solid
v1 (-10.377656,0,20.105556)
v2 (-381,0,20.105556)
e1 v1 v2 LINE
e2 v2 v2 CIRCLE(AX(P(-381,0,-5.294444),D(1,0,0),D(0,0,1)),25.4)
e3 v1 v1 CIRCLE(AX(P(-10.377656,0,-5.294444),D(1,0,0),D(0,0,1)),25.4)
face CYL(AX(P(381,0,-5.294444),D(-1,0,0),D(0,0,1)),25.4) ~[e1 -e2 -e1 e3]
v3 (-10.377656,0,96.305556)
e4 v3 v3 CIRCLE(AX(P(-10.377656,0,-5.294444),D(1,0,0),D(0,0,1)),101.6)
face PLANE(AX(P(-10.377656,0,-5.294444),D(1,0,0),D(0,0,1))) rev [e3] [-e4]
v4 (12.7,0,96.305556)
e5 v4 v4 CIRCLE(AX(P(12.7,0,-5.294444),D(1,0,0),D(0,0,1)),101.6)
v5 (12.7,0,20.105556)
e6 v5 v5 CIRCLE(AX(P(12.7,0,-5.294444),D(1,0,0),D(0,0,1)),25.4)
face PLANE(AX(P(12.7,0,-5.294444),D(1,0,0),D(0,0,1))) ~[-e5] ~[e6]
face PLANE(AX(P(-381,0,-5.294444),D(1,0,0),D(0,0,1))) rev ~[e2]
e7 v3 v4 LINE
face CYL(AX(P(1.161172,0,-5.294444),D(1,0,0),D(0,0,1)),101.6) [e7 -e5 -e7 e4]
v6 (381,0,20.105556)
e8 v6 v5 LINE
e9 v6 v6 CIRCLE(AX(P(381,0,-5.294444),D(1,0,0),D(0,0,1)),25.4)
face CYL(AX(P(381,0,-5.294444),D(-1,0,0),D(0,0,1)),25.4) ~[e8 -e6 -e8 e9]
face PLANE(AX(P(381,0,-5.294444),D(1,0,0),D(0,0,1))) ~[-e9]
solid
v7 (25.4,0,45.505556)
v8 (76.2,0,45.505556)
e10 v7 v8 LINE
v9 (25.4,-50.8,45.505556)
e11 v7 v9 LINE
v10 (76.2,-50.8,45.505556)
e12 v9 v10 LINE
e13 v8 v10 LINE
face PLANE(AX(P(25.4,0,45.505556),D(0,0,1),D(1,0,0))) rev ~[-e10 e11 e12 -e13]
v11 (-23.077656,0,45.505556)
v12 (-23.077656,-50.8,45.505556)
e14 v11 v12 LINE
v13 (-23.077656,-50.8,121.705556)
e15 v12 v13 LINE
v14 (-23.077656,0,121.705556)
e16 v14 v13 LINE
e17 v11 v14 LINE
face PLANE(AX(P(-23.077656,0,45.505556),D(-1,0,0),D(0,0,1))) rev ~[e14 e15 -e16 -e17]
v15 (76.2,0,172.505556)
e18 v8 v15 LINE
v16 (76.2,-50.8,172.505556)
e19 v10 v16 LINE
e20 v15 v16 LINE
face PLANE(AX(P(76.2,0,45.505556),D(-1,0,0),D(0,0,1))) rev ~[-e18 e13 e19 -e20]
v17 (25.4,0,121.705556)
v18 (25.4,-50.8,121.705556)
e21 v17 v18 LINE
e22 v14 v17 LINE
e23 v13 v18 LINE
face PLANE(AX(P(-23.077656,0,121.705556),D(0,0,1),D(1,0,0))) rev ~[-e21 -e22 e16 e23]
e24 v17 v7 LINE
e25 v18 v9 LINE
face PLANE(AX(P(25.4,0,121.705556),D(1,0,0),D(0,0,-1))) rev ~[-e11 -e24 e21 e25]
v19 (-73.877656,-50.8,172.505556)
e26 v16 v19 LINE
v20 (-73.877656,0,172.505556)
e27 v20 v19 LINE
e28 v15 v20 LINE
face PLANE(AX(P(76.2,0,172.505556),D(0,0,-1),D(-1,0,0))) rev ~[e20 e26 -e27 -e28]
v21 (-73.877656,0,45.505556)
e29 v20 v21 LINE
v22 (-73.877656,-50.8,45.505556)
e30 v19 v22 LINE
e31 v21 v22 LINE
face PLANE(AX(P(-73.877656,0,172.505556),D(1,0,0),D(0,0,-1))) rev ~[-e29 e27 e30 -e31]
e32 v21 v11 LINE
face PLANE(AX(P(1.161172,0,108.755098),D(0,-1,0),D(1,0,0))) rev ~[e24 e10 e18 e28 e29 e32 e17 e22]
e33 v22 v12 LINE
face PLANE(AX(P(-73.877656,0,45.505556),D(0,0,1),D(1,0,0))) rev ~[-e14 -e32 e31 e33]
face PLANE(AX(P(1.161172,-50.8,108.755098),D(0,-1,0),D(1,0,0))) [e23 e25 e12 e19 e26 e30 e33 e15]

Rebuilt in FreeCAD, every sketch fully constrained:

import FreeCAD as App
import Part
import Sketcher

V = App.Vector
Q = App.Units.Quantity

doc = App.newDocument("Part")
body = doc.addObject("PartDesign::Body", "Body")

sketch1 = doc.addObject("Sketcher::SketchObject", "Sketch")
body.addObject(sketch1)
sketch1.AttachmentSupport = (doc.XZ_Plane, [""])
sketch1.MapMode = "FlatFace"
sketch1.addGeometry(Part.LineSegment(V(-381, 20, 0), V(-381, -5, 0)), False)
sketch1.addGeometry(Part.LineSegment(V(-381, -5, 0), V(381, -5, 0)), False)
sketch1.addGeometry(Part.LineSegment(V(381, -5, 0), V(381, 20, 0)), False)
sketch1.addGeometry(Part.LineSegment(V(381, 20, 0), V(13, 20, 0)), False)
sketch1.addGeometry(Part.LineSegment(V(13, 20, 0), V(13, 96, 0)), False)
sketch1.addGeometry(Part.LineSegment(V(13, 96, 0), V(-10, 96, 0)), False)
sketch1.addGeometry(Part.LineSegment(V(-10, 96, 0), V(-10, 20, 0)), False)
sketch1.addGeometry(Part.LineSegment(V(-10, 20, 0), V(-381, 20, 0)), False)
sketch1.addGeometry(Part.LineSegment(V(-381, -5, 0), V(381, -5, 0)), True)
sketch1.addConstraint(Sketcher.Constraint("Coincident", 0, 2, 1, 1))
sketch1.addConstraint(Sketcher.Constraint("Coincident", 1, 2, 2, 1))
sketch1.addConstraint(Sketcher.Constraint("Coincident", 2, 2, 3, 1))
sketch1.addConstraint(Sketcher.Constraint("Coincident", 3, 2, 4, 1))
sketch1.addConstraint(Sketcher.Constraint("Coincident", 4, 2, 5, 1))
sketch1.addConstraint(Sketcher.Constraint("Coincident", 5, 2, 6, 1))
sketch1.addConstraint(Sketcher.Constraint("Coincident", 6, 2, 7, 1))
sketch1.addConstraint(Sketcher.Constraint("Coincident", 7, 2, 0, 1))
sketch1.addConstraint(Sketcher.Constraint("Vertical", 0))
sketch1.addConstraint(Sketcher.Constraint("Horizontal", 1))
sketch1.addConstraint(Sketcher.Constraint("Vertical", 2))
sketch1.addConstraint(Sketcher.Constraint("Horizontal", 3))
sketch1.addConstraint(Sketcher.Constraint("Vertical", 4))
sketch1.addConstraint(Sketcher.Constraint("Horizontal", 5))
sketch1.addConstraint(Sketcher.Constraint("Vertical", 6))
sketch1.addConstraint(Sketcher.Constraint("Horizontal", 7))
sketch1.addConstraint(Sketcher.Constraint("Horizontal", 8))
sketch1.addConstraint(Sketcher.Constraint("Coincident", 8, 1, 0, 2))
sketch1.addConstraint(Sketcher.Constraint("Symmetric", 2, 2, 7, 2, -2))
sketch1.addConstraint(Sketcher.Constraint("Vertical", 2, 2, 8, 2))
sketch1.addConstraint(Sketcher.Constraint("DistanceX", 1, 1, 1, 2, Q("30 in")))
sketch1.addConstraint(Sketcher.Constraint("DistanceY", 0, 2, 0, 1, Q("1 in")))
sketch1.addConstraint(Sketcher.Constraint("DistanceY", 4, 1, 4, 2, Q("3 in")))
sketch1.addConstraint(Sketcher.Constraint("DistanceX", 3, 2, 3, 1, Q("14.5 in")))
sketch1.addConstraint(Sketcher.Constraint("DistanceX", 5, 2, 5, 1, Q("23.077656 mm")))
sketch1.addConstraint(Sketcher.Constraint("DistanceY", 0, 2, -1, 1, Q("5.294444 mm")))
revolution = doc.addObject("PartDesign::Revolution", "Revolution")
body.addObject(revolution)
revolution.Profile = sketch1
revolution.ReferenceAxis = (sketch1, ["Axis0"])
revolution.Angle = 360
body2 = doc.addObject("PartDesign::Body", "Body001")

sketch2 = doc.addObject("Sketcher::SketchObject", "Sketch001")
body2.addObject(sketch2)
sketch2.AttachmentSupport = (doc.getObject("XZ_Plane001"), [""])
sketch2.MapMode = "FlatFace"
sketch2.addGeometry(Part.LineSegment(V(-74, 46, 0), V(-23, 46, 0)), False)
sketch2.addGeometry(Part.LineSegment(V(-23, 46, 0), V(-23, 122, 0)), False)
sketch2.addGeometry(Part.LineSegment(V(-23, 122, 0), V(25, 122, 0)), False)
sketch2.addGeometry(Part.LineSegment(V(25, 122, 0), V(25, 46, 0)), False)
sketch2.addGeometry(Part.LineSegment(V(25, 46, 0), V(76, 46, 0)), False)
sketch2.addGeometry(Part.LineSegment(V(76, 46, 0), V(76, 173, 0)), False)
sketch2.addGeometry(Part.LineSegment(V(76, 173, 0), V(-74, 173, 0)), False)
sketch2.addGeometry(Part.LineSegment(V(-74, 173, 0), V(-74, 46, 0)), False)
sketch2.addConstraint(Sketcher.Constraint("Coincident", 0, 2, 1, 1))
sketch2.addConstraint(Sketcher.Constraint("Coincident", 1, 2, 2, 1))
sketch2.addConstraint(Sketcher.Constraint("Coincident", 2, 2, 3, 1))
sketch2.addConstraint(Sketcher.Constraint("Coincident", 3, 2, 4, 1))
sketch2.addConstraint(Sketcher.Constraint("Coincident", 4, 2, 5, 1))
sketch2.addConstraint(Sketcher.Constraint("Coincident", 5, 2, 6, 1))
sketch2.addConstraint(Sketcher.Constraint("Coincident", 6, 2, 7, 1))
sketch2.addConstraint(Sketcher.Constraint("Coincident", 7, 2, 0, 1))
sketch2.addConstraint(Sketcher.Constraint("Horizontal", 0))
sketch2.addConstraint(Sketcher.Constraint("Vertical", 1))
sketch2.addConstraint(Sketcher.Constraint("Horizontal", 2))
sketch2.addConstraint(Sketcher.Constraint("Vertical", 3))
sketch2.addConstraint(Sketcher.Constraint("Horizontal", 4))
sketch2.addConstraint(Sketcher.Constraint("Vertical", 5))
sketch2.addConstraint(Sketcher.Constraint("Horizontal", 6))
sketch2.addConstraint(Sketcher.Constraint("Vertical", 7))
sketch2.addConstraint(Sketcher.Constraint("Horizontal", 0, 2, 3, 2))
sketch2.addConstraint(Sketcher.Constraint("Equal", 0, 4))
sketch2.addConstraint(Sketcher.Constraint("DistanceX", 0, 1, 0, 2, Q("2 in")))
sketch2.addConstraint(Sketcher.Constraint("DistanceY", 1, 1, 1, 2, Q("3 in")))
sketch2.addConstraint(Sketcher.Constraint("DistanceY", 5, 1, 5, 2, Q("5 in")))
sketch2.addConstraint(Sketcher.Constraint("DistanceX", -1, 1, 2, 2, Q("1 in")))
sketch2.addConstraint(Sketcher.Constraint("DistanceX", 2, 1, 2, 2, Q("48.477656 mm")))
sketch2.addConstraint(Sketcher.Constraint("DistanceY", -1, 1, 0, 2, Q("45.505556 mm")))
pad1 = doc.addObject("PartDesign::Pad", "Pad")
body2.addObject(pad1)
pad1.Profile = sketch2
pad1.Length = Q("2 in")

doc.recompute()
